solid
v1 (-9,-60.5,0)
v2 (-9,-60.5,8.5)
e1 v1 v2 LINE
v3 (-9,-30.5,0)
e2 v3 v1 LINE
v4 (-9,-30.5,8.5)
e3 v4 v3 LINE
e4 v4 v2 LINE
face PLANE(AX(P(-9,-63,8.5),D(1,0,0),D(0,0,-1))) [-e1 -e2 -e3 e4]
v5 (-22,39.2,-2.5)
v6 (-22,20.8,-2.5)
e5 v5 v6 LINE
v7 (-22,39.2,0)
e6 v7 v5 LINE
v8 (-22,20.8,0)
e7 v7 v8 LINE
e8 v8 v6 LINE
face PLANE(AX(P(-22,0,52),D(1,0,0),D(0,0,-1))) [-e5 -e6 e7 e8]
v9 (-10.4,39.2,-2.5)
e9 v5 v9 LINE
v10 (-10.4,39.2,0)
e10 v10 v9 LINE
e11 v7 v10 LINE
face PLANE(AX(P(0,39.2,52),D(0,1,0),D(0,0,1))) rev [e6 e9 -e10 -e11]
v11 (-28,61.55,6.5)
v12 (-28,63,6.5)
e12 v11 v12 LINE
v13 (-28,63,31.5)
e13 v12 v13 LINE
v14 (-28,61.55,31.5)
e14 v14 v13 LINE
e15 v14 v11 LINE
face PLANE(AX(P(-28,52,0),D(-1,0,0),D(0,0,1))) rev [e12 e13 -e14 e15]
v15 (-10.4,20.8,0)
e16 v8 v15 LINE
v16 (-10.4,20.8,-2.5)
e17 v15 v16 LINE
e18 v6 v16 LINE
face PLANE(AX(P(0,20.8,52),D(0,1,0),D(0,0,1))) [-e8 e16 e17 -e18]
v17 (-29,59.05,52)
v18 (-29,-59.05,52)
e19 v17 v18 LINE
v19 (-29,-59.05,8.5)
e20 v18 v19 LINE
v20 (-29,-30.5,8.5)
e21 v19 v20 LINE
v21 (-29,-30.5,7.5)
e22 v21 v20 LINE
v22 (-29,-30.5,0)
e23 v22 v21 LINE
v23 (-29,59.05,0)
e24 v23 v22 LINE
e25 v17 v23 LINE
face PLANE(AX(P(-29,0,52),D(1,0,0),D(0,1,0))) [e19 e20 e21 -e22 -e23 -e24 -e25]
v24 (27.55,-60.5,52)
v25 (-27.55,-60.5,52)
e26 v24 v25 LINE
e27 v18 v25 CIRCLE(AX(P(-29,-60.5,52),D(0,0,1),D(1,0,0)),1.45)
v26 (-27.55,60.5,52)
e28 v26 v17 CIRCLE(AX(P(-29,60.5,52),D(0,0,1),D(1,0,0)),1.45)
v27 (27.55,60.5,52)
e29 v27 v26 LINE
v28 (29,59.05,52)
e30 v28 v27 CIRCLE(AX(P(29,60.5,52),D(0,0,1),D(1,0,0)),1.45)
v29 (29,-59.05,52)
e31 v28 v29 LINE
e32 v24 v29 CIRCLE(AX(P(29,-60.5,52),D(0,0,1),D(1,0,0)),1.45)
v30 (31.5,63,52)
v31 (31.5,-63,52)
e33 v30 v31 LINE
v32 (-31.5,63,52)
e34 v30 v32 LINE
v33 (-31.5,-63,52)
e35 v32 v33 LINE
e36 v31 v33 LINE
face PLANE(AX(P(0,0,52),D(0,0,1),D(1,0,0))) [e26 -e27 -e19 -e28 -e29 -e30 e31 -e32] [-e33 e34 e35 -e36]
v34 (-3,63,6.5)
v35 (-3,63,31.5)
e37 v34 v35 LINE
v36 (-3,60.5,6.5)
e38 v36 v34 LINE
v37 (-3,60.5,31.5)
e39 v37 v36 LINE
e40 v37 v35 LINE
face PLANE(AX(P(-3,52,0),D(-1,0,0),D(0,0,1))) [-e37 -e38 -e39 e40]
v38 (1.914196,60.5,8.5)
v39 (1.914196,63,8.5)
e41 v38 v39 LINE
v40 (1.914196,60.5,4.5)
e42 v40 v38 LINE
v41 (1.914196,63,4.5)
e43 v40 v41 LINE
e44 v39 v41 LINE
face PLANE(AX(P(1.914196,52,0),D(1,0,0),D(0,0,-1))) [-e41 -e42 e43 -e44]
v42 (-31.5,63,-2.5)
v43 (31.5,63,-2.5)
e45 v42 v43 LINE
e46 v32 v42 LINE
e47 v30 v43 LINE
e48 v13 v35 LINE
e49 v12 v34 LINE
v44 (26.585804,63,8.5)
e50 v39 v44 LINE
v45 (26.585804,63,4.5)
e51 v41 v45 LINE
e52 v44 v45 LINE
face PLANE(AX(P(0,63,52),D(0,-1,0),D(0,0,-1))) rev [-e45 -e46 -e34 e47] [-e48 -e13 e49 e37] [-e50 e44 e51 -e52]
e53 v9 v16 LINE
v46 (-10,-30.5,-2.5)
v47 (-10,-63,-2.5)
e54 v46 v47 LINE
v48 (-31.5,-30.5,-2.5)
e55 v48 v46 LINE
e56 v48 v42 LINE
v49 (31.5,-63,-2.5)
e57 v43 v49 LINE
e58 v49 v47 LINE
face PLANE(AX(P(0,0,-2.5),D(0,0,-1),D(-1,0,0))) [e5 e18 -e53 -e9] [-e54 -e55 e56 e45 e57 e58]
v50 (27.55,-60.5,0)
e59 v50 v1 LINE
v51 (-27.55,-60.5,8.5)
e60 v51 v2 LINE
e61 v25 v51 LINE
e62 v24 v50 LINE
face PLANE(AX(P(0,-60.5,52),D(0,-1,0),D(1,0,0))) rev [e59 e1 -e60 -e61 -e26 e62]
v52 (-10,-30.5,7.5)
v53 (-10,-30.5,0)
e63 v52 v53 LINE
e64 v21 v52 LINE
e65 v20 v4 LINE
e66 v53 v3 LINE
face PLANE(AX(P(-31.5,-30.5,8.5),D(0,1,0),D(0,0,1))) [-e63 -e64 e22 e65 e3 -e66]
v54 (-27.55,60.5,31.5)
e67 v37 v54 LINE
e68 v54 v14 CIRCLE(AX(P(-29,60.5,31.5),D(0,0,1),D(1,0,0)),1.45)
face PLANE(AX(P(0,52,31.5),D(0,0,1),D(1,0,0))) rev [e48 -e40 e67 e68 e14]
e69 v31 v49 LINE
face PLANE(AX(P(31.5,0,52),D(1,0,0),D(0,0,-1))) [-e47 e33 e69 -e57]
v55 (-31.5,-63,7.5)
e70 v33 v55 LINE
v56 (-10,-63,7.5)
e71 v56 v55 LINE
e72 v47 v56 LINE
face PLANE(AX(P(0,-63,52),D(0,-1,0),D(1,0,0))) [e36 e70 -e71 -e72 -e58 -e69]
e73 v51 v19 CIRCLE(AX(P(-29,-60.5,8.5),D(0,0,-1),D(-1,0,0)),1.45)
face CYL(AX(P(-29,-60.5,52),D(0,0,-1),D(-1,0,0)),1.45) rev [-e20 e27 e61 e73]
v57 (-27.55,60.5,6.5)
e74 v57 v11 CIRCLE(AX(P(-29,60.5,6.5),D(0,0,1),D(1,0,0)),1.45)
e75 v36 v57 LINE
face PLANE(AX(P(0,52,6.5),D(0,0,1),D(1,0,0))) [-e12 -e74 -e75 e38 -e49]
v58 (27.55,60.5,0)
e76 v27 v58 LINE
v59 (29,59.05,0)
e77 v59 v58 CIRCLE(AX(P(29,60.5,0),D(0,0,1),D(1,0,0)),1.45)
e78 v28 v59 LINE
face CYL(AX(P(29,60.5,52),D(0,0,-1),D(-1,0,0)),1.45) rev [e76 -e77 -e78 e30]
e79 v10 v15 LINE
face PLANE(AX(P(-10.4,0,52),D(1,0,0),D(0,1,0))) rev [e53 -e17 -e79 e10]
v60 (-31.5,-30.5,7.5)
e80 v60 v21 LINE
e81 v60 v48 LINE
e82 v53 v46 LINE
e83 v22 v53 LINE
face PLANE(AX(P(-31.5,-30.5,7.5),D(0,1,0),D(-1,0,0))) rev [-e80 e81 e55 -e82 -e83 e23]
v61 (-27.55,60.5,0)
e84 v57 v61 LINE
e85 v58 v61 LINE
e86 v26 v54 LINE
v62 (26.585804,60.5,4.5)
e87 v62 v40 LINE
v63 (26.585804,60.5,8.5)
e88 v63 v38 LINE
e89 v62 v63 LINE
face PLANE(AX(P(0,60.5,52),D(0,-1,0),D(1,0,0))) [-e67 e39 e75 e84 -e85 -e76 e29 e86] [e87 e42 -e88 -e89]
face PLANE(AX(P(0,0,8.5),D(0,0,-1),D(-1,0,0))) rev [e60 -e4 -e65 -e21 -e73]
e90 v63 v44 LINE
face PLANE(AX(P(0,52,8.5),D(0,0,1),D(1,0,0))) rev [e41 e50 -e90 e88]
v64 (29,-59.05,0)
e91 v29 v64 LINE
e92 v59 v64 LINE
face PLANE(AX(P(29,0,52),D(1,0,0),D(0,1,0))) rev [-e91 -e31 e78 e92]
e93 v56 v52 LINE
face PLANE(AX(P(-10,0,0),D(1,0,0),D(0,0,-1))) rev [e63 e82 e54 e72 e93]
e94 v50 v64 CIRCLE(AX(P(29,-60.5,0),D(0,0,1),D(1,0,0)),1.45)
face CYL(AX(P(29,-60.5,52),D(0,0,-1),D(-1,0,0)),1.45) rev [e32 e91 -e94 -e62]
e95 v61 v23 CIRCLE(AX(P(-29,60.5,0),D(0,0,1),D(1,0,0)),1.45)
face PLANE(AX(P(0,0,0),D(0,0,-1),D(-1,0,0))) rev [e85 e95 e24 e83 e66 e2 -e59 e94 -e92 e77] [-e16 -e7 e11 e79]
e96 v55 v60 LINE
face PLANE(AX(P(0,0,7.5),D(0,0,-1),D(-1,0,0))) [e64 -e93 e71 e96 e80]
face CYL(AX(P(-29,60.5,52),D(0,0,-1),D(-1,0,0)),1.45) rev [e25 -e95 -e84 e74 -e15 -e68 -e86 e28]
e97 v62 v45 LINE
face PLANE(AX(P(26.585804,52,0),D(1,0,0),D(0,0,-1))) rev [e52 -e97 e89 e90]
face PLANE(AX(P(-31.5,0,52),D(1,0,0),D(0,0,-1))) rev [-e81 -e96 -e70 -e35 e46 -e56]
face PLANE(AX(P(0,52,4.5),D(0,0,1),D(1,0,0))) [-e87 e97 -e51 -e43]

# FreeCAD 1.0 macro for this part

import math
import FreeCAD as App
import Part
import Sketcher

V = App.Vector

doc = App.newDocument("Part")
body = doc.addObject("PartDesign::Body", "Body")

sketch1 = body.newObject("Sketcher::SketchObject", "Sketch")
sketch1.AttachmentSupport = (doc.getObject("XY_Plane"), [""])
sketch1.MapMode = "FlatFace"
sketch1.addGeometry([
    Part.LineSegment(V(-31.5, 63, 0), V(-31.5, -63, 0)),
    Part.LineSegment(V(-31.5, -63, 0), V(31.5, -63, 0)),
    Part.LineSegment(V(31.5, -63, 0), V(31.5, 63, 0)),
    Part.LineSegment(V(31.5, 63, 0), V(-31.5, 63, 0)),
    Part.ArcOfCircle(Part.Circle(V(-29, 60.5, 0), V(0, 0, 1), 1.4), math.radians(0), math.radians(270)),
    Part.LineSegment(V(-27.6, 60.5, 0), V(27.6, 60.5, 0)),
    Part.ArcOfCircle(Part.Circle(V(29, 60.5, 0), V(0, 0, 1), 1.4), math.radians(0), math.radians(180)),
    Part.ArcOfCircle(Part.Circle(V(29, 60.5, 0), V(0, 0, 1), 1.4), math.radians(-90), math.radians(0)),
    Part.LineSegment(V(29, 59, 0), V(29, -59, 0)),
    Part.ArcOfCircle(Part.Circle(V(29, -60.5, 0), V(0, 0, 1), 1.4), math.radians(0), math.radians(90)),
    Part.ArcOfCircle(Part.Circle(V(29, -60.5, 0), V(0, 0, 1), 1.4), math.radians(180), math.radians(360)),
    Part.LineSegment(V(27.6, -60.5, 0), V(-27.6, -60.5, 0)),
    Part.ArcOfCircle(Part.Circle(V(-29, -60.5, 0), V(0, 0, 1), 1.4), math.radians(90), math.radians(360)),
    Part.LineSegment(V(-29, -59, 0), V(-29, 59, 0)),
], False)
sketch1.addConstraint([
    Sketcher.Constraint("Coincident", 0, 2, 1, 1),
    Sketcher.Constraint("Coincident", 1, 2, 2, 1),
    Sketcher.Constraint("Coincident", 2, 2, 3, 1),
    Sketcher.Constraint("Coincident", 3, 2, 0, 1),
    Sketcher.Constraint("Coincident", 4, 1, 5, 1),
    Sketcher.Constraint("Coincident", 5, 2, 6, 2),
    Sketcher.Constraint("Tangent", 6, 1, 7, 2),
    Sketcher.Constraint("Coincident", 7, 1, 8, 1),
    Sketcher.Constraint("Coincident", 8, 2, 9, 2),
    Sketcher.Constraint("Tangent", 9, 1, 10, 2),
    Sketcher.Constraint("Coincident", 10, 1, 11, 1),
    Sketcher.Constraint("Coincident", 11, 2, 12, 2),
    Sketcher.Constraint("Coincident", 12, 1, 13, 1),
    Sketcher.Constraint("Coincident", 13, 2, 4, 2),
    Sketcher.Constraint("Vertical", 0),
    Sketcher.Constraint("Horizontal", 1),
    Sketcher.Constraint("Vertical", 2),
    Sketcher.Constraint("Horizontal", 3),
    Sketcher.Constraint("Horizontal", 5),
    Sketcher.Constraint("Vertical", 8),
    Sketcher.Constraint("Horizontal", 11),
    Sketcher.Constraint("Vertical", 13),
    Sketcher.Constraint("Equal", 4, 6),
    Sketcher.Constraint("Equal", 6, 7),
    Sketcher.Constraint("Equal", 7, 9),
    Sketcher.Constraint("Equal", 9, 10),
    Sketcher.Constraint("Equal", 10, 12),
    Sketcher.Constraint("Symmetric", 4, 3, 9, 3, -1, 1),
    Sketcher.Constraint("Symmetric", 6, 3, 12, 3, -1, 1),
    Sketcher.Constraint("Symmetric", 0, 2, 2, 2, -1, 1),
    Sketcher.Constraint("Symmetric", 4, 3, 6, 3, -2),
    Sketcher.Constraint("Horizontal", 7, 3, 4, 1),
    Sketcher.Constraint("Horizontal", 5, 2, 6, 1),
    Sketcher.Constraint("Horizontal", 12, 3, 9, 1),
    Sketcher.Constraint("Horizontal", 9, 1, 10, 1),
    Sketcher.Constraint("Vertical", 10, 3, 7, 1),
    Sketcher.Constraint("Vertical", 4, 3, 12, 1),
    Sketcher.Constraint("DistanceX", 1, 1, 1, 2, 63.0),
    Sketcher.Constraint("DistanceY", 0, 2, 0, 1, 126.0),
    Sketcher.Constraint("Radius", 4, 1.45),
    Sketcher.Constraint("DistanceX", 5, 1, 5, 2, 55.1),
    Sketcher.Constraint("DistanceY", 8, 2, 8, 1, 118.1),
])
pad1 = body.newObject("PartDesign::Pad", "Pad")
pad1.Profile = sketch1
pad1.Length = 52

sketch2 = body.newObject("Sketcher::SketchObject", "Sketch001")
sketch2.AttachmentSupport = (doc.getObject("XY_Plane"), [""])
sketch2.MapMode = "FlatFace"
sketch2.addGeometry([
    Part.LineSegment(V(32, 63, 0), V(32, -63, 0)),
    Part.LineSegment(V(32, -63, 0), V(-32, -63, 0)),
    Part.LineSegment(V(-32, -63, 0), V(-32, 63, 0)),
    Part.LineSegment(V(-32, 63, 0), V(32, 63, 0)),
], False)
sketch2.addConstraint([
    Sketcher.Constraint("Coincident", 0, 2, 1, 1),
    Sketcher.Constraint("Coincident", 1, 2, 2, 1),
    Sketcher.Constraint("Coincident", 2, 2, 3, 1),
    Sketcher.Constraint("Coincident", 3, 2, 0, 1),
    Sketcher.Constraint("Vertical", 0),
    Sketcher.Constraint("Horizontal", 1),
    Sketcher.Constraint("Vertical", 2),
    Sketcher.Constraint("Horizontal", 3),
    Sketcher.Constraint("Symmetric", 0, 2, 2, 2, -1, 1),
    Sketcher.Constraint("DistanceX", 1, 2, 1, 1, 63.0),
    Sketcher.Constraint("DistanceY", 0, 2, 0, 1, 126.0),
])
pad2 = body.newObject("PartDesign::Pad", "Pad001")
pad2.Profile = sketch2
pad2.Length = 2.5
pad2.Reversed = True

sketch3 = body.newObject("Sketcher::SketchObject", "Sketch002")
sketch3.AttachmentSupport = (doc.getObject("XY_Plane"), [""])
sketch3.MapMode = "FlatFace"
sketch3.AttachmentOffset = App.Placement(V(0, 0, -2.5), App.Rotation())
sketch3.addGeometry([
    Part.LineSegment(V(-9, -30, 0), V(-9, -63, 0)),
    Part.LineSegment(V(-9, -63, 0), V(-32, -63, 0)),
    Part.LineSegment(V(-32, -63, 0), V(-32, -30, 0)),
    Part.LineSegment(V(-32, -30, 0), V(-9, -30, 0)),
], False)
sketch3.addConstraint([
    Sketcher.Constraint("Coincident", 0, 2, 1, 1),
    Sketcher.Constraint("Coincident", 1, 2, 2, 1),
    Sketcher.Constraint("Coincident", 2, 2, 3, 1),
    Sketcher.Constraint("Coincident", 3, 2, 0, 1),
    Sketcher.Constraint("Vertical", 0),
    Sketcher.Constraint("Horizontal", 1),
    Sketcher.Constraint("Vertical", 2),
    Sketcher.Constraint("Horizontal", 3),
    Sketcher.Constraint("DistanceX", 1, 2, 1, 1, 22.5),
    Sketcher.Constraint("DistanceY", 0, 2, 0, 1, 32.5),
    Sketcher.Constraint("DistanceX", 0, 2, -1, 1, 9.0),
    Sketcher.Constraint("DistanceY", 0, 2, -1, 1, 63.0),
])
pocket1 = body.newObject("PartDesign::Pocket", "Pocket")
pocket1.Profile = sketch3
pocket1.Length = 10
pocket1.Reversed = True

sketch4 = body.newObject("Sketcher::SketchObject", "Sketch003")
sketch4.AttachmentSupport = (doc.getObject("XY_Plane"), [""])
sketch4.MapMode = "FlatFace"
sketch4.AttachmentOffset = App.Placement(V(0, 0, 7.5), App.Rotation())
sketch4.addGeometry([
    Part.LineSegment(V(-9, -30, 0), V(-9, -63, 0)),
    Part.LineSegment(V(-9, -63, 0), V(-32, -63, 0)),
    Part.LineSegment(V(-32, -63, 0), V(-32, -30, 0)),
    Part.LineSegment(V(-32, -30, 0), V(-9, -30, 0)),
], False)
sketch4.addConstraint([
    Sketcher.Constraint("Coincident", 0, 2, 1, 1),
    Sketcher.Constraint("Coincident", 1, 2, 2, 1),
    Sketcher.Constraint("Coincident", 2, 2, 3, 1),
    Sketcher.Constraint("Coincident", 3, 2, 0, 1),
    Sketcher.Constraint("Vertical", 0),
    Sketcher.Constraint("Horizontal", 1),
    Sketcher.Constraint("Vertical", 2),
    Sketcher.Constraint("Horizontal", 3),
    Sketcher.Constraint("DistanceX", 1, 2, 1, 1, 22.5),
    Sketcher.Constraint("DistanceY", 0, 2, 0, 1, 32.5),
    Sketcher.Constraint("DistanceX", 0, 2, -1, 1, 9.0),
    Sketcher.Constraint("DistanceY", 0, 2, -1, 1, 63.0),
])
pad3 = body.newObject("PartDesign::Pad", "Pad002")
pad3.Profile = sketch4
pad3.Length = 1

sketch5 = body.newObject("Sketcher::SketchObject", "Sketch004")
sketch5.AttachmentSupport = (doc.getObject("YZ_Plane"), [""])
sketch5.MapMode = "FlatFace"
sketch5.AttachmentOffset = App.Placement(V(0, 0, -9), App.Rotation())
sketch5.addGeometry([
    Part.LineSegment(V(-30, -2, 0), V(-63, -2, 0)),
    Part.LineSegment(V(-63, -2, 0), V(-63, 8, 0)),
    Part.LineSegment(V(-63, 8, 0), V(-30, 8, 0)),
    Part.LineSegment(V(-30, 8, 0), V(-30, -2, 0)),
], False)
sketch5.addConstraint([
    Sketcher.Constraint("Coincident", 0, 2, 1, 1),
    Sketcher.Constraint("Coincident", 1, 2, 2, 1),
    Sketcher.Constraint("Coincident", 2, 2, 3, 1),
    Sketcher.Constraint("Coincident", 3, 2, 0, 1),
    Sketcher.Constraint("Horizontal", 0),
    Sketcher.Constraint("Vertical", 1),
    Sketcher.Constraint("Horizontal", 2),
    Sketcher.Constraint("Vertical", 3),
    Sketcher.Constraint("DistanceY", 1, 1, 1, 2, 10.0),
    Sketcher.Constraint("DistanceX", 0, 2, 0, 1, 32.5),
    Sketcher.Constraint("DistanceX", 0, 2, -1, 1, 63.0),
    Sketcher.Constraint("DistanceY", 0, 2, -1, 1, 2.5),
])
pad4 = body.newObject("PartDesign::Pad", "Pad003")
pad4.Profile = sketch5
pad4.Length = 1
pad4.Reversed = True

sketch6 = body.newObject("Sketcher::SketchObject", "Sketch005")
sketch6.AttachmentSupport = (doc.getObject("XY_Plane"), [""])
sketch6.MapMode = "FlatFace"
sketch6.AttachmentOffset = App.Placement(V(0, 0, -2.5), App.Rotation())
sketch6.addGeometry([
    Part.LineSegment(V(-10, 39, 0), V(-10, 21, 0)),
    Part.LineSegment(V(-10, 21, 0), V(-22, 21, 0)),
    Part.LineSegment(V(-22, 21, 0), V(-22, 39, 0)),
    Part.LineSegment(V(-22, 39, 0), V(-10, 39, 0)),
], False)
sketch6.addConstraint([
    Sketcher.Constraint("Coincident", 0, 2, 1, 1),
    Sketcher.Constraint("Coincident", 1, 2, 2, 1),
    Sketcher.Constraint("Coincident", 2, 2, 3, 1),
    Sketcher.Constraint("Coincident", 3, 2, 0, 1),
    Sketcher.Constraint("Vertical", 0),
    Sketcher.Constraint("Horizontal", 1),
    Sketcher.Constraint("Vertical", 2),
    Sketcher.Constraint("Horizontal", 3),
    Sketcher.Constraint("DistanceX", 1, 2, 1, 1, 11.6),
    Sketcher.Constraint("DistanceY", 0, 2, 0, 1, 18.4),
    Sketcher.Constraint("DistanceX", 1, 2, -1, 1, 22.0),
    Sketcher.Constraint("DistanceY", -1, 1, 0, 2, 20.8),
])
pocket2 = body.newObject("PartDesign::Pocket", "Pocket001")
pocket2.Profile = sketch6
pocket2.Type = "ThroughAll"
pocket2.Reversed = True

sketch7 = body.newObject("Sketcher::SketchObject", "Sketch006")
sketch7.AttachmentSupport = (doc.getObject("XZ_Plane"), [""])
sketch7.MapMode = "FlatFace"
sketch7.AttachmentOffset = App.Placement(V(0, 0, -63), App.Rotation())
sketch7.addGeometry([
    Part.LineSegment(V(-28, 6, 0), V(-28, 32, 0)),
    Part.LineSegment(V(-28, 32, 0), V(-3, 32, 0)),
    Part.LineSegment(V(-3, 32, 0), V(-3, 6, 0)),
    Part.LineSegment(V(-3, 6, 0), V(-28, 6, 0)),
], False)
sketch7.addConstraint([
    Sketcher.Constraint("Coincident", 0, 2, 1, 1),
    Sketcher.Constraint("Coincident", 1, 2, 2, 1),
    Sketcher.Constraint("Coincident", 2, 2, 3, 1),
    Sketcher.Constraint("Coincident", 3, 2, 0, 1),
    Sketcher.Constraint("Vertical", 0),
    Sketcher.Constraint("Horizontal", 1),
    Sketcher.Constraint("Vertical", 2),
    Sketcher.Constraint("Horizontal", 3),
    Sketcher.Constraint("Equal", 3, 0),
    Sketcher.Constraint("DistanceX", 1, 1, 1, 2, 25.0),
    Sketcher.Constraint("DistanceX", 0, 2, -1, 1, 28.0),
    Sketcher.Constraint("DistanceY", -1, 1, 0, 2, 31.5),
])
pocket3 = body.newObject("PartDesign::Pocket", "Pocket002")
pocket3.Profile = sketch7
pocket3.Length = 11
pocket3.Reversed = True

sketch8 = body.newObject("Sketcher::SketchObject", "Sketch007")
sketch8.AttachmentSupport = (doc.getObject("XZ_Plane"), [""])
sketch8.MapMode = "FlatFace"
sketch8.AttachmentOffset = App.Placement(V(0, 0, -63), App.Rotation())
sketch8.addGeometry([
    Part.LineSegment(V(1.9, 8.5, 0), V(26.6, 8.5, 0)),
    Part.LineSegment(V(26.6, 8.5, 0), V(26.6, 4.5, 0)),
    Part.LineSegment(V(26.6, 4.5, 0), V(1.9, 4.5, 0)),
    Part.LineSegment(V(1.9, 4.5, 0), V(1.9, 8.5, 0)),
], False)
sketch8.addConstraint([
    Sketcher.Constraint("Coincident", 0, 2, 1, 1),
    Sketcher.Constraint("Coincident", 1, 2, 2, 1),
    Sketcher.Constraint("Coincident", 2, 2, 3, 1),
    Sketcher.Constraint("Coincident", 3, 2, 0, 1),
    Sketcher.Constraint("Horizontal", 0),
    Sketcher.Constraint("Vertical", 1),
    Sketcher.Constraint("Horizontal", 2),
    Sketcher.Constraint("Vertical", 3),
    Sketcher.Constraint("DistanceY", 1, 2, 1, 1, 4.0),
    Sketcher.Constraint("DistanceY", -1, 1, 0, 2, 8.5),
    Sketcher.Constraint("DistanceX", 0, 1, 0, 2, 24.671608),
    Sketcher.Constraint("DistanceX", -1, 1, 0, 2, 26.585804),
])
pocket4 = body.newObject("PartDesign::Pocket", "Pocket003")
pocket4.Profile = sketch8
pocket4.Length = 11
pocket4.Reversed = True

doc.recompute()
